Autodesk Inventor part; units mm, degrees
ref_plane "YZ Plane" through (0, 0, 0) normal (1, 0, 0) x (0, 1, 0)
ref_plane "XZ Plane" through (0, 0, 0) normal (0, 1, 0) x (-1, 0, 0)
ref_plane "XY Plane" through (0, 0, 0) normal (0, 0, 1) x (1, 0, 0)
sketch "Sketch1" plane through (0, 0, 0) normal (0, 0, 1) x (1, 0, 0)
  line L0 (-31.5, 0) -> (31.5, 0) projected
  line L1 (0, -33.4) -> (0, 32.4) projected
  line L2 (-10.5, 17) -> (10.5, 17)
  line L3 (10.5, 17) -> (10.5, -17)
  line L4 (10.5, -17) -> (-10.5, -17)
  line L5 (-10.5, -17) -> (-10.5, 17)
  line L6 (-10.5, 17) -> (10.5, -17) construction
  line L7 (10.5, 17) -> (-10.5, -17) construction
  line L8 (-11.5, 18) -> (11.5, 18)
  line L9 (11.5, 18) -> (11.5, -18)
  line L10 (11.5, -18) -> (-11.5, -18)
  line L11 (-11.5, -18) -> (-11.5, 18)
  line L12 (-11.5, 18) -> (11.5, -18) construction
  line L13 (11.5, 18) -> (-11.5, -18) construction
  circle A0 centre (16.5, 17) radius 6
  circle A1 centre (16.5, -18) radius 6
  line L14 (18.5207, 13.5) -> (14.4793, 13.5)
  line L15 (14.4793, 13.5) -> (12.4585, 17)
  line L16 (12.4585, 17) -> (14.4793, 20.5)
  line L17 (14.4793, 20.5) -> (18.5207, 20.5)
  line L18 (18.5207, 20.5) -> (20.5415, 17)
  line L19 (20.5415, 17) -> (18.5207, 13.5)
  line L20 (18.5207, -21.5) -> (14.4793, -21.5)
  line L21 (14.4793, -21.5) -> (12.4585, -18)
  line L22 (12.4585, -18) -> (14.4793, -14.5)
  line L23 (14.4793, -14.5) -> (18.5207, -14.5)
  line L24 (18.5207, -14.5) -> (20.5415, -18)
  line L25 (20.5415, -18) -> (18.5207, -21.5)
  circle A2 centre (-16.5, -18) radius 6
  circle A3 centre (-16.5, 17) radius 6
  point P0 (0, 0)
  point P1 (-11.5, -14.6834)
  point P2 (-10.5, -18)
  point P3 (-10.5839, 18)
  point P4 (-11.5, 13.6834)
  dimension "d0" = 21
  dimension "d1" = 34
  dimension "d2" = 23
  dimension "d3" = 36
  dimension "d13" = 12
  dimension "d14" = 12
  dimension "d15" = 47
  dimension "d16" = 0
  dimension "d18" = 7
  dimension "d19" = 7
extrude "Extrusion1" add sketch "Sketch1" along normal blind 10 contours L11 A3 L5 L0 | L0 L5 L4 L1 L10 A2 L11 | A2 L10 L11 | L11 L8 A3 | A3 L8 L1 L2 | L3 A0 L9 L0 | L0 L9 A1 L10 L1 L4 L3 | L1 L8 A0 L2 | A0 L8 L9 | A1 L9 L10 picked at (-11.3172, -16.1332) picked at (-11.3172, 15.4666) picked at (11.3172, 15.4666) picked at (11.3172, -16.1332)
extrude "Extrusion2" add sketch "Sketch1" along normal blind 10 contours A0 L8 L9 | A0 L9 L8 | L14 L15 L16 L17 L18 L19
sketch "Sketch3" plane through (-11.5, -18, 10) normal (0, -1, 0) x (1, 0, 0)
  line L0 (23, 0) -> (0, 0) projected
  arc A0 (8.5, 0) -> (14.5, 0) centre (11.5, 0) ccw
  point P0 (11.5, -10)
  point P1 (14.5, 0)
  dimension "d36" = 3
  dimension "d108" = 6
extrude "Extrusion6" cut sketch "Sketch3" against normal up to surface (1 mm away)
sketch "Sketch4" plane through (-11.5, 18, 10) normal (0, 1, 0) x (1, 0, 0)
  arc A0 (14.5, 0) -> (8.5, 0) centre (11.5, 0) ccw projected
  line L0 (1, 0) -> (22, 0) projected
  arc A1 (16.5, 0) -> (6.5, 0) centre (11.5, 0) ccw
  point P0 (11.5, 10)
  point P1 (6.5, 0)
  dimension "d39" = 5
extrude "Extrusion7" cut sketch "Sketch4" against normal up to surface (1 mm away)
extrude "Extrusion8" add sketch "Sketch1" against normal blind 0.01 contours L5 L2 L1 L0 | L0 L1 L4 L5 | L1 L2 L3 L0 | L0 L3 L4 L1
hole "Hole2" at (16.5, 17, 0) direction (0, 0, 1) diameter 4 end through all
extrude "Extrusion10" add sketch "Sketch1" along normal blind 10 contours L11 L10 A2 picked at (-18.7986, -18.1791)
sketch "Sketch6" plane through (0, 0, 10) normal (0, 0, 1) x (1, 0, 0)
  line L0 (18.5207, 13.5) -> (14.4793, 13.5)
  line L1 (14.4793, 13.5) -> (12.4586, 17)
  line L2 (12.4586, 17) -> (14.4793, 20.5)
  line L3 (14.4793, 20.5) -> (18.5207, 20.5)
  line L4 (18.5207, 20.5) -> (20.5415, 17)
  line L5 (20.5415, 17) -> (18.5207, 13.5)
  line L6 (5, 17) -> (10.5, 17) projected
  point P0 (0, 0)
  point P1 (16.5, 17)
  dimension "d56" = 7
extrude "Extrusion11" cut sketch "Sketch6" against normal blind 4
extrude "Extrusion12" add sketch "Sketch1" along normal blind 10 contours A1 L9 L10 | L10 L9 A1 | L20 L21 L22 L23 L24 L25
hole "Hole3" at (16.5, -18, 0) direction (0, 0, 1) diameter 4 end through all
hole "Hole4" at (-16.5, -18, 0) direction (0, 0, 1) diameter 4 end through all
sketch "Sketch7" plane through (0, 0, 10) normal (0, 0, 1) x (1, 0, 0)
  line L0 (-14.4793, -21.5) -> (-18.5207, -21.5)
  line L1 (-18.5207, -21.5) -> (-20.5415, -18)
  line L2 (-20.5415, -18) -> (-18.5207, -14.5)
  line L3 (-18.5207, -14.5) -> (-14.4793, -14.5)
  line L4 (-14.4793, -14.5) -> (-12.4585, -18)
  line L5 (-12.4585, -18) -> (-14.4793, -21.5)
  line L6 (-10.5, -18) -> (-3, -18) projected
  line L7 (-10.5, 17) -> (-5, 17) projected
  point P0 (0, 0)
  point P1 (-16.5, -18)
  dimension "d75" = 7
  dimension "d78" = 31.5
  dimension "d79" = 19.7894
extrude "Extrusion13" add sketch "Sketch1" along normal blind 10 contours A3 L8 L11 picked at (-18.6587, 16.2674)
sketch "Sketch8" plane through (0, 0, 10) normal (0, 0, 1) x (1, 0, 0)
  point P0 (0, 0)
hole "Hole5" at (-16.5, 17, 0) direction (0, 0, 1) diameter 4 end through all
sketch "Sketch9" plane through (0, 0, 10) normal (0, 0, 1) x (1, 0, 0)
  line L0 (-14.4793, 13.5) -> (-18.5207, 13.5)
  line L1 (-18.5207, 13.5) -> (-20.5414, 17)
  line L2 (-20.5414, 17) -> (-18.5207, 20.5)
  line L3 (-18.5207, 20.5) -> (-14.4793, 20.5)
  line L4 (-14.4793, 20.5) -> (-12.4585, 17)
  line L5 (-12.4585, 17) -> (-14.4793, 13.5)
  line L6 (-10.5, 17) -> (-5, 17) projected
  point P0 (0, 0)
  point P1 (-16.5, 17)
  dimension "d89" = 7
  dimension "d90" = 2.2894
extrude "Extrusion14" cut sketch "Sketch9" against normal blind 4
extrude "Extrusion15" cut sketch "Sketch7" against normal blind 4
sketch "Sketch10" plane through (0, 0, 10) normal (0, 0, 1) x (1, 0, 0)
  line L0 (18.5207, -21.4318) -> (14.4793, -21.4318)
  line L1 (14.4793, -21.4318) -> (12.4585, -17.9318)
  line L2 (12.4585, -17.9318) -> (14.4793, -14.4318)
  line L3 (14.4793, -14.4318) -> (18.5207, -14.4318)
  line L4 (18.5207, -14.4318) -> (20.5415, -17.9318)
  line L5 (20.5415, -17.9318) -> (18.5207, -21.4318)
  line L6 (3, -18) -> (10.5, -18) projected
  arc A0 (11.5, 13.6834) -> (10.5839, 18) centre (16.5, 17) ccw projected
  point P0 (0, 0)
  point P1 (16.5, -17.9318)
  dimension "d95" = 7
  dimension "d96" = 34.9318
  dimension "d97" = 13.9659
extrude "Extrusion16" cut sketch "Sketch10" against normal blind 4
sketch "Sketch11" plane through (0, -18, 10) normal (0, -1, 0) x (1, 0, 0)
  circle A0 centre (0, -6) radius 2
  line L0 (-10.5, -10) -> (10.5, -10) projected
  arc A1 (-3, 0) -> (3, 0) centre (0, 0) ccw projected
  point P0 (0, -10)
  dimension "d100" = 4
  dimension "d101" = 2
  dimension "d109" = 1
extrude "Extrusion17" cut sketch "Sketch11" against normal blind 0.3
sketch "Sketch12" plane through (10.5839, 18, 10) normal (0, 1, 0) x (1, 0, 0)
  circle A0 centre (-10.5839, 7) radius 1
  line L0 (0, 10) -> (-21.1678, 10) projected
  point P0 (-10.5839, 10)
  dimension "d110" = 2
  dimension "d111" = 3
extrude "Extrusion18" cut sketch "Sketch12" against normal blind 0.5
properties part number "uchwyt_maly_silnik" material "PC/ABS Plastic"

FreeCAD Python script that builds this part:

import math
import FreeCAD as App
import Part
import Sketcher
Q = App.Units.Quantity


def add_polygon(sketch, points):
    """Adds a closed chain of lines whose ends are joined by coincident constraints."""
    first, n = sketch.GeometryCount, len(points)
    for a, b in zip(points, points[1:] + points[:1]):
        sketch.addGeometry(Part.LineSegment(App.Vector(*a, 0), App.Vector(*b, 0)), False)
    for i in range(n):
        sketch.addConstraint(Sketcher.Constraint("Coincident", first + i, 2, first + (i + 1) % n, 1))

doc = App.newDocument("Part")
params = doc.addObject("Spreadsheet::Sheet", "Params")
for row, (alias, value) in enumerate([
    ("sketch1_width", "23 mm"),
    ("sketch1_width2", "21 mm"),
    ("sketch1_height", "36 mm"),
    ("sketch1_height2", "34 mm"),
    ("pad1_length", "10 mm"),
    ("sketch2_diameter", "12 mm"),
    ("pad2_length", "10 mm"),
    ("sketch3_radius", "3 mm"),
    ("pocket1_length", "1 mm"),
    ("sketch4_radius", "5 mm"),
    ("pocket2_length", "1 mm"),
    ("sketch5_width", "21 mm"),
    ("sketch5_height", "34 mm"),
    ("pad3_length", "0.01 mm"),
    ("sketch6_diameter", "4 mm"),
    ("hole_diameter", "4 mm"),
    ("sketch7_radius", "6 mm"),
    ("sketch7_width", "1 mm"),
    ("pad4_length", "10 mm"),
    ("pocket3_length", "4 mm"),
    ("sketch9_diameter", "12 mm"),
    ("pad5_length", "10 mm"),
    ("sketch10_diameter", "4 mm"),
    ("hole2_diameter", "4 mm"),
    ("sketch11_diameter", "4 mm"),
    ("hole3_diameter", "4 mm"),
    ("sketch12_radius", "6 mm"),
    ("sketch12_width", "5 mm"),
    ("pad6_length", "10 mm"),
    ("sketch13_diameter", "4 mm"),
    ("hole4_diameter", "4 mm"),
    ("pocket4_length", "4 mm"),
    ("pocket5_length", "4 mm"),
    ("pocket6_length", "4 mm"),
    ("sketch17_diameter", "4 mm"),
    ("pocket7_length", "0.3 mm"),
    ("sketch18_diameter", "2 mm"),
    ("pocket8_length", "0.5 mm"),
], start=1):
    params.set(f"A{row}", alias)
    params.set(f"B{row}", "=" + value)
    params.setAlias(f"B{row}", alias)

body = doc.addObject("PartDesign::Body", "Body")
body.AllowCompound = True

# Sketch on XY plane
sketch1 = body.newObject("Sketcher::SketchObject", "Sketch")
sketch1.AttachmentSupport = (doc.getObject("XY_Plane"), [""])
sketch1.MapMode = "FlatFace"
add_polygon(sketch1, [(-11.5, -18), (11.5, -18), (11.5, 18), (-11.5, 18)])  # lines 0-3
add_polygon(sketch1, [(-10.5, 17), (10.5, 17), (10.5, -17), (-10.5, -17)])  # lines 4-7
sketch1.addConstraint([
    Sketcher.Constraint("Horizontal", 0),
    Sketcher.Constraint("Vertical", 1),
    Sketcher.Constraint("Horizontal", 2),
    Sketcher.Constraint("Vertical", 3),
    Sketcher.Constraint("Horizontal", 4),
    Sketcher.Constraint("Vertical", 5),
    Sketcher.Constraint("Horizontal", 6),
    Sketcher.Constraint("Vertical", 7),
    Sketcher.Constraint("Symmetric", 0, 2, 2, 2, -1, 1),
    Sketcher.Constraint("Symmetric", 4, 2, 6, 2, -1, 1),
    Sketcher.Constraint("DistanceX", 0, 1, 0, 2, 23.0),
    Sketcher.Constraint("DistanceX", 4, 1, 4, 2, 21.0),
    Sketcher.Constraint("DistanceY", 1, 1, 1, 2, 36.0),
    Sketcher.Constraint("DistanceY", 5, 2, 5, 1, 34.0),
])
sketch1.setExpression("Constraints[18]", "Params.sketch1_width")
sketch1.setExpression("Constraints[19]", "Params.sketch1_width2")
sketch1.setExpression("Constraints[20]", "Params.sketch1_height")
sketch1.setExpression("Constraints[21]", "Params.sketch1_height2")
pad1 = body.newObject("PartDesign::Pad", "Pad")
pad1.Profile = sketch1
pad1.setExpression("Length", "Params.pad1_length")

# Sketch on XY plane
sketch2 = body.newObject("Sketcher::SketchObject", "Sketch001")
sketch2.AttachmentSupport = (doc.getObject("XY_Plane"), [""])
sketch2.MapMode = "FlatFace"
sketch2.addGeometry(Part.Circle(App.Vector(16.5, 17, 0), App.Vector(0, 0, 1), 6), False)
sketch2.addConstraint([
    Sketcher.Constraint("Diameter", 0, 12.0),
    Sketcher.Constraint("DistanceY", -1, 1, 0, 3, 17.0),
    Sketcher.Constraint("DistanceX", -1, 1, 0, 3, 16.5),
])
sketch2.setExpression("Constraints[0]", "Params.sketch2_diameter")
pad2 = body.newObject("PartDesign::Pad", "Pad001")
pad2.Profile = sketch2
pad2.setExpression("Length", "Params.pad2_length")

# Sketch on XZ plane
sketch3 = body.newObject("Sketcher::SketchObject", "Sketch002")
sketch3.AttachmentSupport = (doc.getObject("XZ_Plane"), [""])
sketch3.MapMode = "FlatFace"
sketch3.AttachmentOffset = App.Placement(App.Vector(0, 0, 18), App.Rotation())
sketch3.addGeometry([
    Part.ArcOfCircle(Part.Circle(App.Vector(0, 10, 0), App.Vector(0, 0, 1), 3), math.radians(180), math.radians(360)),
    Part.LineSegment(App.Vector(3, 10, 0), App.Vector(-3, 10, 0)),
], False)
sketch3.addConstraint([
    Sketcher.Constraint("Coincident", 0, 1, 1, 2),
    Sketcher.Constraint("Coincident", 1, 1, 0, 2),
    Sketcher.Constraint("Horizontal", 1),
    Sketcher.Constraint("PointOnObject", 0, 3, -2),
    Sketcher.Constraint("Radius", 0, 3.0),
    Sketcher.Constraint("DistanceY", -1, 1, 0, 3, 10.0),
    Sketcher.Constraint("DistanceY", -1, 1, 0, 1, 10.0),
])
sketch3.setExpression("Constraints[4]", "Params.sketch3_radius")
pocket1 = body.newObject("PartDesign::Pocket", "Pocket")
pocket1.Profile = sketch3
pocket1.setExpression("Length", "Params.pocket1_length")

# Sketch on XZ plane
sketch4 = body.newObject("Sketcher::SketchObject", "Sketch003")
sketch4.AttachmentSupport = (doc.getObject("XZ_Plane"), [""])
sketch4.MapMode = "FlatFace"
sketch4.AttachmentOffset = App.Placement(App.Vector(0, 0, -18), App.Rotation())
sketch4.addGeometry([
    Part.ArcOfCircle(Part.Circle(App.Vector(0, 10, 0), App.Vector(0, 0, 1), 5), math.radians(180), math.radians(360)),
    Part.LineSegment(App.Vector(-5, 10, 0), App.Vector(5, 10, 0)),
], False)
sketch4.addConstraint([
    Sketcher.Constraint("Coincident", 0, 1, 1, 1),
    Sketcher.Constraint("Coincident", 1, 2, 0, 2),
    Sketcher.Constraint("Horizontal", 1),
    Sketcher.Constraint("PointOnObject", 0, 3, -2),
    Sketcher.Constraint("Radius", 0, 5.0),
    Sketcher.Constraint("DistanceY", -1, 1, 0, 3, 10.0),
    Sketcher.Constraint("DistanceY", -1, 1, 0, 1, 10.0),
])
sketch4.setExpression("Constraints[4]", "Params.sketch4_radius")
pocket2 = body.newObject("PartDesign::Pocket", "Pocket001")
pocket2.Profile = sketch4
pocket2.setExpression("Length", "Params.pocket2_length")
pocket2.Reversed = True

# Sketch on XY plane
sketch5 = body.newObject("Sketcher::SketchObject", "Sketch004")
sketch5.AttachmentSupport = (doc.getObject("XY_Plane"), [""])
sketch5.MapMode = "FlatFace"
add_polygon(sketch5, [(-10.5, 17), (-10.5, -17), (10.5, -17), (10.5, 17)])  # lines 0-3
sketch5.addConstraint([
    Sketcher.Constraint("Vertical", 0),
    Sketcher.Constraint("Horizontal", 1),
    Sketcher.Constraint("Vertical", 2),
    Sketcher.Constraint("Horizontal", 3),
    Sketcher.Constraint("Symmetric", 0, 2, 2, 2, -1, 1),
    Sketcher.Constraint("DistanceX", 1, 1, 1, 2, 21.0),
    Sketcher.Constraint("DistanceY", 0, 2, 0, 1, 34.0),
])
sketch5.setExpression("Constraints[9]", "Params.sketch5_width")
sketch5.setExpression("Constraints[10]", "Params.sketch5_height")
pad3 = body.newObject("PartDesign::Pad", "Pad002")
pad3.Profile = sketch5
pad3.setExpression("Length", "Params.pad3_length")
pad3.Reversed = True

# Sketch on XY plane
sketch6 = body.newObject("Sketcher::SketchObject", "Sketch005")
sketch6.AttachmentSupport = (doc.getObject("XY_Plane"), [""])
sketch6.MapMode = "FlatFace"
sketch6.addGeometry(Part.Circle(App.Vector(16.5, 17, 0), App.Vector(0, 0, 1), 2), False)
sketch6.addConstraint([
    Sketcher.Constraint("Diameter", 0, 4.0),
    Sketcher.Constraint("DistanceY", -1, 1, 0, 3, 17.0),
    Sketcher.Constraint("DistanceX", -1, 1, 0, 3, 16.5),
])
sketch6.setExpression("Constraints[0]", "Params.sketch6_diameter")
doc.recompute()
hole = body.newObject("PartDesign::Hole", "Hole")
hole.Profile = sketch6
hole.ThreadType = "None"
hole.setExpression("Diameter", "Params.hole_diameter")
hole.DepthType = "ThroughAll"
hole.Reversed = True

# Sketch on XY plane
sketch7 = body.newObject("Sketcher::SketchObject", "Sketch006")
sketch7.AttachmentSupport = (doc.getObject("XY_Plane"), [""])
sketch7.MapMode = "FlatFace"
sketch7.addGeometry([
    Part.LineSegment(App.Vector(-11.5, -18, 0), App.Vector(-11.5, -14.683375, 0)),
    Part.ArcOfCircle(Part.Circle(App.Vector(-16.5, -18, 0), App.Vector(0, 0, 1), 6), math.radians(33.55731), math.radians(360)),
    Part.LineSegment(App.Vector(-10.5, -18, 0), App.Vector(-11.5, -18, 0)),
], False)
sketch7.addConstraint([
    Sketcher.Constraint("Coincident", 0, 2, 1, 1),
    Sketcher.Constraint("Coincident", 1, 2, 2, 1),
    Sketcher.Constraint("Coincident", 2, 2, 0, 1),
    Sketcher.Constraint("Vertical", 0),
    Sketcher.Constraint("Horizontal", 2),
    Sketcher.Constraint("Radius", 1, 6.0),
    Sketcher.Constraint("DistanceX", 2, 2, 2, 1, 1.0),
    Sketcher.Constraint("DistanceY", 1, 3, -1, 1, 18.0),
    Sketcher.Constraint("DistanceY", 1, 2, -1, 1, 18.0),
    Sketcher.Constraint("DistanceX", 1, 3, -1, 1, 16.5),
])
sketch7.setExpression("Constraints[5]", "Params.sketch7_radius")
sketch7.setExpression("Constraints[6]", "Params.sketch7_width")
pad4 = body.newObject("PartDesign::Pad", "Pad003")
pad4.Profile = sketch7
pad4.setExpression("Length", "Params.pad4_length")

# Sketch on XY plane
sketch8 = body.newObject("Sketcher::SketchObject", "Sketch007")
sketch8.AttachmentSupport = (doc.getObject("XY_Plane"), [""])
sketch8.MapMode = "FlatFace"
sketch8.AttachmentOffset = App.Placement(App.Vector(0, 0, 10), App.Rotation())
add_polygon(sketch8, [(14.4793, 13.5), (18.5207, 13.5), (20.5415, 17), (18.5207, 20.5), (14.4793, 20.5), (12.4586, 17)])  # lines 0-5
sketch8.addConstraint([
    Sketcher.Constraint("Horizontal", 0),
    Sketcher.Constraint("Horizontal", 3),
    Sketcher.Constraint("Parallel", 1, 4),
    Sketcher.Constraint("Parallel", 2, 5),
    Sketcher.Constraint("Horizontal", 1, 2, 4, 2),
    Sketcher.Constraint("Vertical", 0, 2, 2, 2),
    Sketcher.Constraint("Vertical", 3, 2, 5, 2),
    Sketcher.Constraint("DistanceY", 0, 2, 2, 2, 7.0),
    Sketcher.Constraint("Angle", 1, Q("59.999 deg")),
    Sketcher.Constraint("DistanceY", -1, 1, 1, 2, 17.0),
    Sketcher.Constraint("DistanceX", 0, 1, 0, 2, 4.0414),
    Sketcher.Constraint("DistanceX", -1, 1, 0, 2, 18.5207),
])
pocket3 = body.newObject("PartDesign::Pocket", "Pocket002")
pocket3.Profile = sketch8
pocket3.setExpression("Length", "Params.pocket3_length")

# Sketch on XY plane
sketch9 = body.newObject("Sketcher::SketchObject", "Sketch008")
sketch9.AttachmentSupport = (doc.getObject("XY_Plane"), [""])
sketch9.MapMode = "FlatFace"
sketch9.addGeometry(Part.Circle(App.Vector(16.5, -18, 0), App.Vector(0, 0, 1), 6), False)
sketch9.addConstraint([
    Sketcher.Constraint("Diameter", 0, 12.0),
    Sketcher.Constraint("DistanceY", 0, 3, -1, 1, 18.0),
    Sketcher.Constraint("DistanceX", -1, 1, 0, 3, 16.5),
])
sketch9.setExpression("Constraints[0]", "Params.sketch9_diameter")
pad5 = body.newObject("PartDesign::Pad", "Pad004")
pad5.Profile = sketch9
pad5.setExpression("Length", "Params.pad5_length")

# Sketch on XY plane
sketch10 = body.newObject("Sketcher::SketchObject", "Sketch009")
sketch10.AttachmentSupport = (doc.getObject("XY_Plane"), [""])
sketch10.MapMode = "FlatFace"
sketch10.addGeometry(Part.Circle(App.Vector(16.5, -18, 0), App.Vector(0, 0, 1), 2), False)
sketch10.addConstraint([
    Sketcher.Constraint("Diameter", 0, 4.0),
    Sketcher.Constraint("DistanceY", 0, 3, -1, 1, 18.0),
    Sketcher.Constraint("DistanceX", -1, 1, 0, 3, 16.5),
])
sketch10.setExpression("Constraints[0]", "Params.sketch10_diameter")
doc.recompute()
hole2 = body.newObject("PartDesign::Hole", "Hole001")
hole2.Profile = sketch10
hole2.ThreadType = "None"
hole2.setExpression("Diameter", "Params.hole2_diameter")
hole2.DepthType = "ThroughAll"
hole2.Reversed = True

# Sketch on XY plane
sketch11 = body.newObject("Sketcher::SketchObject", "Sketch010")
sketch11.AttachmentSupport = (doc.getObject("XY_Plane"), [""])
sketch11.MapMode = "FlatFace"
sketch11.addGeometry(Part.Circle(App.Vector(-16.5, -18, 0), App.Vector(0, 0, 1), 2), False)
sketch11.addConstraint([
    Sketcher.Constraint("Diameter", 0, 4.0),
    Sketcher.Constraint("DistanceY", 0, 3, -1, 1, 18.0),
    Sketcher.Constraint("DistanceX", 0, 3, -1, 1, 16.5),
])
sketch11.setExpression("Constraints[0]", "Params.sketch11_diameter")
doc.recompute()
hole3 = body.newObject("PartDesign::Hole", "Hole002")
hole3.Profile = sketch11
hole3.ThreadType = "None"
hole3.setExpression("Diameter", "Params.hole3_diameter")
hole3.DepthType = "ThroughAll"
hole3.Reversed = True

# Sketch on XY plane
sketch12 = body.newObject("Sketcher::SketchObject", "Sketch011")
sketch12.AttachmentSupport = (doc.getObject("XY_Plane"), [""])
sketch12.MapMode = "FlatFace"
sketch12.addGeometry([
    Part.ArcOfCircle(Part.Circle(App.Vector(-16.5, 17, 0), App.Vector(0, 0, 1), 6), math.radians(9.594068), math.radians(326.44269)),
    Part.LineSegment(App.Vector(-11.5, 13.683375, 0), App.Vector(-11.5, 18, 0)),
    Part.LineSegment(App.Vector(-11.5, 18, 0), App.Vector(-10.58392, 18, 0)),
], False)
sketch12.addConstraint([
    Sketcher.Constraint("Coincident", 0, 2, 1, 1),
    Sketcher.Constraint("Coincident", 1, 2, 2, 1),
    Sketcher.Constraint("Coincident", 2, 2, 0, 1),
    Sketcher.Constraint("Vertical", 1),
    Sketcher.Constraint("Horizontal", 2),
    Sketcher.Constraint("Radius", 0, 6.0),
    Sketcher.Constraint("DistanceY", -1, 1, 0, 3, 17.0),
    Sketcher.Constraint("DistanceY", -1, 1, 1, 2, 18.0),
    Sketcher.Constraint("DistanceX", 0, 3, 0, 2, 5.0),
    Sketcher.Constraint("DistanceX", 0, 3, -1, 1, 16.5),
])
sketch12.setExpression("Constraints[5]", "Params.sketch12_radius")
sketch12.setExpression("Constraints[8]", "Params.sketch12_width")
pad6 = body.newObject("PartDesign::Pad", "Pad005")
pad6.Profile = sketch12
pad6.setExpression("Length", "Params.pad6_length")

# Sketch on XY plane
sketch13 = body.newObject("Sketcher::SketchObject", "Sketch012")
sketch13.AttachmentSupport = (doc.getObject("XY_Plane"), [""])
sketch13.MapMode = "FlatFace"
sketch13.addGeometry(Part.Circle(App.Vector(-16.5, 17, 0), App.Vector(0, 0, 1), 2), False)
sketch13.addConstraint([
    Sketcher.Constraint("Diameter", 0, 4.0),
    Sketcher.Constraint("DistanceY", -1, 1, 0, 3, 17.0),
    Sketcher.Constraint("DistanceX", 0, 3, -1, 1, 16.5),
])
sketch13.setExpression("Constraints[0]", "Params.sketch13_diameter")
doc.recompute()
hole4 = body.newObject("PartDesign::Hole", "Hole003")
hole4.Profile = sketch13
hole4.ThreadType = "None"
hole4.setExpression("Diameter", "Params.hole4_diameter")
hole4.DepthType = "ThroughAll"
hole4.Reversed = True

# Sketch on XY plane
sketch14 = body.newObject("Sketcher::SketchObject", "Sketch013")
sketch14.AttachmentSupport = (doc.getObject("XY_Plane"), [""])
sketch14.MapMode = "FlatFace"
sketch14.AttachmentOffset = App.Placement(App.Vector(0, 0, 10), App.Rotation())
add_polygon(sketch14, [(-18.5207, 13.5), (-14.4793, 13.5), (-12.4585, 17), (-14.4793, 20.5), (-18.5207, 20.5), (-20.5414, 17)])  # lines 0-5
sketch14.addConstraint([
    Sketcher.Constraint("Horizontal", 0),
    Sketcher.Constraint("Horizontal", 3),
    Sketcher.Constraint("Parallel", 1, 4),
    Sketcher.Constraint("Parallel", 2, 5),
    Sketcher.Constraint("Horizontal", 1, 2, 4, 2),
    Sketcher.Constraint("Vertical", 0, 2, 2, 2),
    Sketcher.Constraint("Vertical", 3, 2, 5, 2),
    Sketcher.Constraint("DistanceY", 0, 2, 2, 2, 7.0),
    Sketcher.Constraint("Angle", 1, Q("59.999 deg")),
    Sketcher.Constraint("DistanceY", -1, 1, 1, 2, 17.0),
    Sketcher.Constraint("DistanceX", 0, 1, 0, 2, 4.0414),
    Sketcher.Constraint("DistanceX", 0, 2, -1, 1, 14.4793),
])
pocket4 = body.newObject("PartDesign::Pocket", "Pocket003")
pocket4.Profile = sketch14
pocket4.setExpression("Length", "Params.pocket4_length")

# Sketch on XY plane
sketch15 = body.newObject("Sketcher::SketchObject", "Sketch014")
sketch15.AttachmentSupport = (doc.getObject("XY_Plane"), [""])
sketch15.MapMode = "FlatFace"
sketch15.AttachmentOffset = App.Placement(App.Vector(0, 0, 10), App.Rotation())
add_polygon(sketch15, [(-18.5207, -21.5), (-14.4793, -21.5), (-12.4585, -18), (-14.4793, -14.5), (-18.5207, -14.5), (-20.5415, -18)])  # lines 0-5
sketch15.addConstraint([
    Sketcher.Constraint("Horizontal", 0),
    Sketcher.Constraint("Horizontal", 3),
    Sketcher.Constraint("Parallel", 1, 4),
    Sketcher.Constraint("Parallel", 2, 5),
    Sketcher.Constraint("Horizontal", 1, 2, 4, 2),
    Sketcher.Constraint("Vertical", 0, 2, 2, 2),
    Sketcher.Constraint("Vertical", 3, 2, 5, 2),
    Sketcher.Constraint("DistanceY", 0, 2, 2, 2, 7.0),
    Sketcher.Constraint("Angle", 1, Q("59.999 deg")),
    Sketcher.Constraint("DistanceY", 1, 2, -1, 1, 18.0),
    Sketcher.Constraint("DistanceX", 0, 1, 0, 2, 4.0414),
    Sketcher.Constraint("DistanceX", 0, 2, -1, 1, 14.4793),
])
pocket5 = body.newObject("PartDesign::Pocket", "Pocket004")
pocket5.Profile = sketch15
pocket5.setExpression("Length", "Params.pocket5_length")

# Sketch on XY plane
sketch16 = body.newObject("Sketcher::SketchObject", "Sketch015")
sketch16.AttachmentSupport = (doc.getObject("XY_Plane"), [""])
sketch16.MapMode = "FlatFace"
sketch16.AttachmentOffset = App.Placement(App.Vector(0, 0, 10), App.Rotation())
add_polygon(sketch16, [(14.4793, -21.4318), (18.5207, -21.4318), (20.5415, -17.9318), (18.5207, -14.4318), (14.4793, -14.4318), (12.4585, -17.9318)])  # lines 0-5
sketch16.addConstraint([
    Sketcher.Constraint("Horizontal", 0),
    Sketcher.Constraint("Horizontal", 3),
    Sketcher.Constraint("Parallel", 1, 4),
    Sketcher.Constraint("Parallel", 2, 5),
    Sketcher.Constraint("Horizontal", 1, 2, 4, 2),
    Sketcher.Constraint("Vertical", 0, 2, 2, 2),
    Sketcher.Constraint("Vertical", 3, 2, 5, 2),
    Sketcher.Constraint("DistanceY", 0, 2, 2, 2, 7.0),
    Sketcher.Constraint("Angle", 1, Q("59.999 deg")),
    Sketcher.Constraint("DistanceX", 0, 1, 0, 2, 4.0414),
    Sketcher.Constraint("DistanceX", -1, 1, 0, 2, 18.5207),
    Sketcher.Constraint("DistanceY", 0, 2, -1, 1, 21.4318),
])
pocket6 = body.newObject("PartDesign::Pocket", "Pocket005")
pocket6.Profile = sketch16
pocket6.setExpression("Length", "Params.pocket6_length")

# Sketch on XZ plane
sketch17 = body.newObject("Sketcher::SketchObject", "Sketch016")
sketch17.AttachmentSupport = (doc.getObject("XZ_Plane"), [""])
sketch17.MapMode = "FlatFace"
sketch17.AttachmentOffset = App.Placement(App.Vector(0, 0, 18), App.Rotation())
sketch17.addGeometry(Part.Circle(App.Vector(0, 4, 0), App.Vector(0, 0, 1), 2), False)
sketch17.addConstraint([
    Sketcher.Constraint("PointOnObject", 0, 3, -2),
    Sketcher.Constraint("Diameter", 0, 4.0),
    Sketcher.Constraint("DistanceY", -1, 1, 0, 3, 4.0),
])
sketch17.setExpression("Constraints[1]", "Params.sketch17_diameter")
pocket7 = body.newObject("PartDesign::Pocket", "Pocket006")
pocket7.Profile = sketch17
pocket7.setExpression("Length", "Params.pocket7_length")

# Sketch on XZ plane
sketch18 = body.newObject("Sketcher::SketchObject", "Sketch017")
sketch18.AttachmentSupport = (doc.getObject("XZ_Plane"), [""])
sketch18.MapMode = "FlatFace"
sketch18.AttachmentOffset = App.Placement(App.Vector(0, 0, -18), App.Rotation())
sketch18.addGeometry(Part.Circle(App.Vector(0, 3, 0), App.Vector(0, 0, 1), 1), False)
sketch18.addConstraint([
    Sketcher.Constraint("PointOnObject", 0, 3, -2),
    Sketcher.Constraint("Diameter", 0, 2.0),
    Sketcher.Constraint("DistanceY", -1, 1, 0, 3, 3.0),
])
sketch18.setExpression("Constraints[1]", "Params.sketch18_diameter")
pocket8 = body.newObject("PartDesign::Pocket", "Pocket007")
pocket8.Profile = sketch18
pocket8.setExpression("Length", "Params.pocket8_length")
pocket8.Reversed = True

doc.recompute()
